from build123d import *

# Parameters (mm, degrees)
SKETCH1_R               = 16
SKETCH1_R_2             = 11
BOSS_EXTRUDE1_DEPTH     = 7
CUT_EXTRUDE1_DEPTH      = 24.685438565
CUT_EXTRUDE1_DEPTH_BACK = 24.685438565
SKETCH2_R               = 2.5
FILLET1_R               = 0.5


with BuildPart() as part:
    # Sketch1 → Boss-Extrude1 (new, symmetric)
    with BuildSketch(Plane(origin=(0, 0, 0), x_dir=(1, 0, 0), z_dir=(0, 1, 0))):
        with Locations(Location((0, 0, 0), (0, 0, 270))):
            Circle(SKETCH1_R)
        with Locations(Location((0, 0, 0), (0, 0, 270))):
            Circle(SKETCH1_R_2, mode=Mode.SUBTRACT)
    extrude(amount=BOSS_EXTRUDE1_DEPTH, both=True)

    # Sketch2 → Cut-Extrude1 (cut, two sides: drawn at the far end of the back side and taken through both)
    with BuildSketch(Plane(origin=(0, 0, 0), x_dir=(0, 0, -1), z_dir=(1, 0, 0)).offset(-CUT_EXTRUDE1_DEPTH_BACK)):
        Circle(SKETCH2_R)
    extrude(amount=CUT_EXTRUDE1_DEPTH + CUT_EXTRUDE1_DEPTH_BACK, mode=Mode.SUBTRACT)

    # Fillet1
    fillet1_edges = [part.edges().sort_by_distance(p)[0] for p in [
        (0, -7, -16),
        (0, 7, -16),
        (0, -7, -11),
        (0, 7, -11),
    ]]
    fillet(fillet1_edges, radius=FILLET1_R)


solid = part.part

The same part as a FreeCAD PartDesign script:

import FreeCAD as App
import Part
import Sketcher


def edges_at(feature, points):
    """Names of the edges that pass closest to the given points."""
    edges = feature.Shape.Edges
    near = lambda p: min(range(len(edges)), key=lambda i: edges[i].distToShape(Part.Vertex(*p))[0])
    return sorted({f"Edge{near(p) + 1}" for p in points})

doc = App.newDocument("Part")
body = doc.addObject("PartDesign::Body", "Body")

# Sketch on XZ plane
sketch1 = body.newObject("Sketcher::SketchObject", "Sketch")
sketch1.AttachmentSupport = (doc.getObject("XZ_Plane"), [""])
sketch1.MapMode = "FlatFace"
sketch1.addGeometry([
    Part.Circle(App.Vector(0, 0, 0), App.Vector(0, 0, 1), 16),
    Part.Circle(App.Vector(0, 0, 0), App.Vector(0, 0, 1), 11),
], False)
sketch1.addConstraint([
    Sketcher.Constraint("Coincident", 0, 3, -1, 1),
    Sketcher.Constraint("Coincident", 1, 3, -1, 1),
    Sketcher.Constraint("Diameter", 0, 32.0),
    Sketcher.Constraint("Diameter", 1, 22.0),
])
pad1 = body.newObject("PartDesign::Pad", "Pad")
pad1.Profile = sketch1
pad1.Length = 14
pad1.Midplane = True

# Sketch on YZ plane
sketch2 = body.newObject("Sketcher::SketchObject", "Sketch001")
sketch2.AttachmentSupport = (doc.getObject("YZ_Plane"), [""])
sketch2.MapMode = "FlatFace"
sketch2.addGeometry(Part.Circle(App.Vector(0, 0, 0), App.Vector(0, 0, 1), 2.5), False)
sketch2.addConstraint([
    Sketcher.Constraint("Coincident", 0, 3, -1, 1),
    Sketcher.Constraint("Diameter", 0, 5.0),
])
pocket1 = body.newObject("PartDesign::Pocket", "Pocket")
pocket1.Profile = sketch2
pocket1.Type = "ThroughAll"
pocket1.Midplane = True
doc.recompute()

fillet = body.newObject("PartDesign::Fillet", "Fillet")
fillet.Base = (pocket1, edges_at(pocket1, [
    (0, -7, -16),
    (0, 7, -16),
    (0, -7, -11),
    (0, 7, -11),
]))
fillet.Radius = 0.5

doc.recompute()
